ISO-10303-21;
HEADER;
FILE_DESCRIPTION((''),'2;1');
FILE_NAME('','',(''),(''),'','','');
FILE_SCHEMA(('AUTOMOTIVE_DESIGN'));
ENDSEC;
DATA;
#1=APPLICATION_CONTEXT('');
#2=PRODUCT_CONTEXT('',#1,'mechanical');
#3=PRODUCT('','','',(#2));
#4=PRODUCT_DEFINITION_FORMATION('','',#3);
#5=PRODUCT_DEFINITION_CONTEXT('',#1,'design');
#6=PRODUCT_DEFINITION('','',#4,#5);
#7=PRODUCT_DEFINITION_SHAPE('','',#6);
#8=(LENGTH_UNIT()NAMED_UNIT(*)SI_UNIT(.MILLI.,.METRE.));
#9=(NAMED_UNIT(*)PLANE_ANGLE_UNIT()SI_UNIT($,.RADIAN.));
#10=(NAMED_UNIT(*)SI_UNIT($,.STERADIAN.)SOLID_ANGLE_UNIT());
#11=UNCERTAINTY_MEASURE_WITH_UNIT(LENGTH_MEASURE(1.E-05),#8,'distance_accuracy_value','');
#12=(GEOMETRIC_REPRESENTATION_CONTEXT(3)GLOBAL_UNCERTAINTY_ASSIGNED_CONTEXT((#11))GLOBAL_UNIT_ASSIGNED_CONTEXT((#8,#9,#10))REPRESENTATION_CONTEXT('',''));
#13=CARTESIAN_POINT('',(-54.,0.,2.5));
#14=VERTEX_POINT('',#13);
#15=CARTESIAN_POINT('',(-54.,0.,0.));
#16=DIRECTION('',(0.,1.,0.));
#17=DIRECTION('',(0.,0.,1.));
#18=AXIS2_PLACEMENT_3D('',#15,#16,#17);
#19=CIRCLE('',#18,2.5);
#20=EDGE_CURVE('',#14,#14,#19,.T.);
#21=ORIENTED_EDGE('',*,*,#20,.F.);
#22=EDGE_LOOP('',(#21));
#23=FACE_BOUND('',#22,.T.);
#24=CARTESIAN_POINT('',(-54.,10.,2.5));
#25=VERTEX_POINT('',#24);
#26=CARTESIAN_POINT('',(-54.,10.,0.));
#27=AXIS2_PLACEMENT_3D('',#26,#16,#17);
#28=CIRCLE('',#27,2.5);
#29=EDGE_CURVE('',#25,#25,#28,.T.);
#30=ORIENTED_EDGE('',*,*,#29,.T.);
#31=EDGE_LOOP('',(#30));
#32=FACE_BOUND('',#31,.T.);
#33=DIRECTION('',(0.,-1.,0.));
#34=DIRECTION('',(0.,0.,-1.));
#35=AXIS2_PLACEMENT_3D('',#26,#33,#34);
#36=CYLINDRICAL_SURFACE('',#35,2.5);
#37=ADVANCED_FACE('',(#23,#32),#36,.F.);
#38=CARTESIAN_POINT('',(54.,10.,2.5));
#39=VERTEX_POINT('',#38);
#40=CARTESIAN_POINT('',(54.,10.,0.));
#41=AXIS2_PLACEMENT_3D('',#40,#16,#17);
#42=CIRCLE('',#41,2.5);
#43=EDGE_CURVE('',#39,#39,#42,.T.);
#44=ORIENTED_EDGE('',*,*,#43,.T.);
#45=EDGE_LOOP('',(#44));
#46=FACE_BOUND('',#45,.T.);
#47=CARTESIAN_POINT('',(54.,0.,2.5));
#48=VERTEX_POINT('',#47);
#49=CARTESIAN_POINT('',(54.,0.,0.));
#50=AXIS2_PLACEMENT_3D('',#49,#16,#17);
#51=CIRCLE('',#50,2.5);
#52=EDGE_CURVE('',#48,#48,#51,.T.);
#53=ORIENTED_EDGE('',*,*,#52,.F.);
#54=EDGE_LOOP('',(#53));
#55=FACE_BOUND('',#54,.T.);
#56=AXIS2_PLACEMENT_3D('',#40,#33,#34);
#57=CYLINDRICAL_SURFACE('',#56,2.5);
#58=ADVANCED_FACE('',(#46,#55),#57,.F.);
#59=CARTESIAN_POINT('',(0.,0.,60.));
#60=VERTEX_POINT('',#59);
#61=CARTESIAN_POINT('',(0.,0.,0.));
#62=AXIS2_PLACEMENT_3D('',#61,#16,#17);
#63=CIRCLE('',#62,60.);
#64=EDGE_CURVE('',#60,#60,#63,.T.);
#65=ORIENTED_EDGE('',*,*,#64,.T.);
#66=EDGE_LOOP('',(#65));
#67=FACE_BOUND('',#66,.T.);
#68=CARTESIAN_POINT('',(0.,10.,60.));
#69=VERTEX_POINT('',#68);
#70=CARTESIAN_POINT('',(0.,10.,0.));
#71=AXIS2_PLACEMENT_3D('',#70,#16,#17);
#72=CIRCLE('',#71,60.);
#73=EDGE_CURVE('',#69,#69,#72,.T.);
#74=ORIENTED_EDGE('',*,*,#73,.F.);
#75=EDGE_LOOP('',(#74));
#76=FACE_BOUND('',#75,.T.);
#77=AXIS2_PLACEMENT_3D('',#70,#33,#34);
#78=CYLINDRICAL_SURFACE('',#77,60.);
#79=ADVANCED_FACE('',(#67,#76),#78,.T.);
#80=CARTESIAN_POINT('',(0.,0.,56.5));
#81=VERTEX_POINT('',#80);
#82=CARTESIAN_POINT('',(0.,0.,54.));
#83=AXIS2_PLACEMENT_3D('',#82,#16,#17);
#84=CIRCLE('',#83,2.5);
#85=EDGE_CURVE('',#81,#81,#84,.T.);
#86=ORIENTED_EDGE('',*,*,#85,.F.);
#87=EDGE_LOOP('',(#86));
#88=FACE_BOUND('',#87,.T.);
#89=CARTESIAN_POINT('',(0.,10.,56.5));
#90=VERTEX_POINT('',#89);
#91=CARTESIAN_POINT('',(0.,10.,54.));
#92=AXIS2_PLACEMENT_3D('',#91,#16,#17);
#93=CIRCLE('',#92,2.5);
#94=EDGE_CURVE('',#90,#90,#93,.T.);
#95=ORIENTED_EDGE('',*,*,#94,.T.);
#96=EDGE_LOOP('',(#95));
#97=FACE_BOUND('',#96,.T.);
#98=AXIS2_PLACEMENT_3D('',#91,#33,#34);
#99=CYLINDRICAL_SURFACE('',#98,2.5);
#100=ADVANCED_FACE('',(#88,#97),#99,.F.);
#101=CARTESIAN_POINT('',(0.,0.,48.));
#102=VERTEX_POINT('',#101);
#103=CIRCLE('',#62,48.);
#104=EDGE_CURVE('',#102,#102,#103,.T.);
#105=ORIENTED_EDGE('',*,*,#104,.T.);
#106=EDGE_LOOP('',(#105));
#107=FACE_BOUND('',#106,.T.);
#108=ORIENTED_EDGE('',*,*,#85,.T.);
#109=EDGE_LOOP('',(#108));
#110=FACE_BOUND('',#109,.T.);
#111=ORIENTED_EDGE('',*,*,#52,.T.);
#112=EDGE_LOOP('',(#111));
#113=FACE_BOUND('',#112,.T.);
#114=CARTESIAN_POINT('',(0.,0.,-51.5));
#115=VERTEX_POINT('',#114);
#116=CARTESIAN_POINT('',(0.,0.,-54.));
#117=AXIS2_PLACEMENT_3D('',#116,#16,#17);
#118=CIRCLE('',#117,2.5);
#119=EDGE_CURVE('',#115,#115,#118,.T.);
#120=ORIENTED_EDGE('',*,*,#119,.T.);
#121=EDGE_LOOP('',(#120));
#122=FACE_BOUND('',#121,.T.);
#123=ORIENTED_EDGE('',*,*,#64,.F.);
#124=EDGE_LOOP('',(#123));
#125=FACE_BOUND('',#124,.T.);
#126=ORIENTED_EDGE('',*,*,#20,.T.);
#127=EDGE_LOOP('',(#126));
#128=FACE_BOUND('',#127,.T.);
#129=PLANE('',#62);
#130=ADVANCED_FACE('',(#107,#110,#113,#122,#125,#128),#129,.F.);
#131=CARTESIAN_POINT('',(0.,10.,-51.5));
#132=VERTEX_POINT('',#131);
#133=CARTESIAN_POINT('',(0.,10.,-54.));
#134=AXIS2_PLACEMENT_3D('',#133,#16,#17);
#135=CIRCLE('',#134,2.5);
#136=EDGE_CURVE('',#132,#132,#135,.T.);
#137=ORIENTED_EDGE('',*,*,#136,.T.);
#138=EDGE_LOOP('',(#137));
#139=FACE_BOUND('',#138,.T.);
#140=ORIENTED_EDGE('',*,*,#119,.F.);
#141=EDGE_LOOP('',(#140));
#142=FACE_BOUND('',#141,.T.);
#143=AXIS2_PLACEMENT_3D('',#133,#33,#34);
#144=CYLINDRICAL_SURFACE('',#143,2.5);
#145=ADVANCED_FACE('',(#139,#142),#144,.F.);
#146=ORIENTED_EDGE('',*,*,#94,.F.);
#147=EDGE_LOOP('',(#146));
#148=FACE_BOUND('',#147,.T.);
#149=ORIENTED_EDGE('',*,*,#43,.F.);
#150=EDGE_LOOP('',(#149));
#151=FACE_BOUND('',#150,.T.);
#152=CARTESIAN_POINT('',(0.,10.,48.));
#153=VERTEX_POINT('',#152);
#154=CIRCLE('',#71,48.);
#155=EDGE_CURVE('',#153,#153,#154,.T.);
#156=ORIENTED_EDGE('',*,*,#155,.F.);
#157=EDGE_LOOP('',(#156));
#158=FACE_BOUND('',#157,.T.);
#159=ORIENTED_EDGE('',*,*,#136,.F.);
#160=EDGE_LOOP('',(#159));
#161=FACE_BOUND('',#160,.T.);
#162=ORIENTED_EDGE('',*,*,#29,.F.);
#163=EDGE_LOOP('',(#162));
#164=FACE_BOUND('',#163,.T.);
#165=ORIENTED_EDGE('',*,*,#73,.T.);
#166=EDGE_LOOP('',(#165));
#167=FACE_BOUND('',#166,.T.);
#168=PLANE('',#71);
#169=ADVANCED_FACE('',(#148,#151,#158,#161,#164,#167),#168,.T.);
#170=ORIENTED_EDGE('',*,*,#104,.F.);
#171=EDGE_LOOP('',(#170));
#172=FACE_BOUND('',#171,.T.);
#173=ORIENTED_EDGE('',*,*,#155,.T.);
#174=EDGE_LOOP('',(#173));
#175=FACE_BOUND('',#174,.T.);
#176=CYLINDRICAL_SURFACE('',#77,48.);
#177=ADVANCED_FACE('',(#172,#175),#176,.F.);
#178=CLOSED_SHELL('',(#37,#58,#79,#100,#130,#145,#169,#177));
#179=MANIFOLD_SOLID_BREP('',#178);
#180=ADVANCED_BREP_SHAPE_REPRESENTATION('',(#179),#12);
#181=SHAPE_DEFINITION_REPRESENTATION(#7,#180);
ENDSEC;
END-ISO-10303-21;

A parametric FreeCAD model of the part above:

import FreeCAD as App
import Part
import Sketcher

V = App.Vector
Q = App.Units.Quantity

doc = App.newDocument("Part")
body = doc.addObject("PartDesign::Body", "Body")

sketch1 = body.newObject("Sketcher::SketchObject", "Sketch")
sketch1.AttachmentSupport = (doc.getObject("XZ_Plane"), [""])
sketch1.MapMode = "FlatFace"
sketch1.addGeometry(Part.Circle(V(0, 0, 0), V(0, 0, 1), 60), False)
sketch1.addGeometry(Part.Circle(V(0, -54, 0), V(0, 0, 1), 2.5), False)
sketch1.addGeometry(Part.Circle(V(-54, 0, 0), V(0, 0, 1), 2.5), False)
sketch1.addGeometry(Part.Circle(V(54, 0, 0), V(0, 0, 1), 2.5), False)
sketch1.addGeometry(Part.Circle(V(0, 0, 0), V(0, 0, 1), 48), False)
sketch1.addGeometry(Part.Circle(V(0, 54, 0), V(0, 0, 1), 2.5), False)
sketch1.addConstraint(Sketcher.Constraint("Coincident", 0, 3, -1, 1))
sketch1.addConstraint(Sketcher.Constraint("Coincident", 4, 3, -1, 1))
sketch1.addConstraint(Sketcher.Constraint("Equal", 1, 2))
sketch1.addConstraint(Sketcher.Constraint("Equal", 2, 3))
sketch1.addConstraint(Sketcher.Constraint("Equal", 3, 5))
sketch1.addConstraint(Sketcher.Constraint("Symmetric", 2, 3, 3, 3, -1, 1))
sketch1.addConstraint(Sketcher.Constraint("Symmetric", 1, 3, 5, 3, -1, 1))
sketch1.addConstraint(Sketcher.Constraint("PointOnObject", 1, 3, -2))
sketch1.addConstraint(Sketcher.Constraint("PointOnObject", 2, 3, -1))
sketch1.addConstraint(Sketcher.Constraint("Diameter", 0, Q("120 mm")))
sketch1.addConstraint(Sketcher.Constraint("Diameter", 1, Q("5 mm")))
sketch1.addConstraint(Sketcher.Constraint("Diameter", 4, Q("96 mm")))
sketch1.addConstraint(Sketcher.Constraint("DistanceY", 1, 3, -1, 1, Q("54 mm")))
sketch1.addConstraint(Sketcher.Constraint("DistanceX", 2, 3, -1, 1, Q("54 mm")))
pad1 = body.newObject("PartDesign::Pad", "Pad")
pad1.Profile = sketch1
pad1.Length = 10
pad1.Reversed = True

doc.recompute()
